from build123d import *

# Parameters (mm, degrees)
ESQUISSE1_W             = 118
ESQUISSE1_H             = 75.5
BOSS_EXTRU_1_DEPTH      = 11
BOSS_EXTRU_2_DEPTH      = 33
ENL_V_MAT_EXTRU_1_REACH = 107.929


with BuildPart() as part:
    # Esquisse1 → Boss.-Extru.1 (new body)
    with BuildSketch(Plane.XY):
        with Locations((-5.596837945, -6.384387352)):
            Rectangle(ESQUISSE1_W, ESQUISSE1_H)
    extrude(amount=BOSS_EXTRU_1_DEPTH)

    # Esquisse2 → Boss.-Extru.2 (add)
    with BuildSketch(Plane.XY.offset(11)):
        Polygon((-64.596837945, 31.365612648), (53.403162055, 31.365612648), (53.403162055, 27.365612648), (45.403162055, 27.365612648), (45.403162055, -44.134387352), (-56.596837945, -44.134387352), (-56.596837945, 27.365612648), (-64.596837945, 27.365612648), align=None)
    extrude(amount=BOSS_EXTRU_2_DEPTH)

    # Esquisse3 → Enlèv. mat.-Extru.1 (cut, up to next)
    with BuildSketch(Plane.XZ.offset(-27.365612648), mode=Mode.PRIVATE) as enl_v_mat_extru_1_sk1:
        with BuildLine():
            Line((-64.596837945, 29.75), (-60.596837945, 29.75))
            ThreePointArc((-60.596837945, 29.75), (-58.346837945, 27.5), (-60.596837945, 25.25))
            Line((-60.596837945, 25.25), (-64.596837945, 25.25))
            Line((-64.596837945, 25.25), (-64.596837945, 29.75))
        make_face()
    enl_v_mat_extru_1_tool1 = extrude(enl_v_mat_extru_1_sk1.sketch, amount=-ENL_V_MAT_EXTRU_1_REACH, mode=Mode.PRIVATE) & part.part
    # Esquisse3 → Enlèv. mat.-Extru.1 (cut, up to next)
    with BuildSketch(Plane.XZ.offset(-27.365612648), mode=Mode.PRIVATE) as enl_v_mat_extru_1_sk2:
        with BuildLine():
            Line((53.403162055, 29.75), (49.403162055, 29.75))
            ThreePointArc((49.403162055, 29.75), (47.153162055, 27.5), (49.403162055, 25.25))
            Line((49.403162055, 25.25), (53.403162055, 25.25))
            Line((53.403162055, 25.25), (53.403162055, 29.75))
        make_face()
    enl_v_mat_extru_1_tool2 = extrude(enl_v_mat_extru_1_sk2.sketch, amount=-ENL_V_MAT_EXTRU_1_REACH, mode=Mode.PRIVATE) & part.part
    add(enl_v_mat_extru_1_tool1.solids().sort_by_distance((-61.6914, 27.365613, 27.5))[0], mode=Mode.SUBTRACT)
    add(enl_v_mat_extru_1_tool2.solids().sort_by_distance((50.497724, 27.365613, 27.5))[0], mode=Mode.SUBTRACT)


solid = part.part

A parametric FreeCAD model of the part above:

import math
import FreeCAD as App
import Part
import Sketcher
from FreeCAD import Vector


def add_polygon(sketch, points):
    """Adds a closed chain of lines whose ends are joined by coincident constraints."""
    first, n = sketch.GeometryCount, len(points)
    for a, b in zip(points, points[1:] + points[:1]):
        sketch.addGeometry(Part.LineSegment(App.Vector(*a, 0), App.Vector(*b, 0)), False)
    for i in range(n):
        sketch.addConstraint(Sketcher.Constraint("Coincident", first + i, 2, first + (i + 1) % n, 1))

doc = App.newDocument("Part")
body = doc.addObject("PartDesign::Body", "Body")

# Sketch on XY plane
sketch1 = body.newObject("Sketcher::SketchObject", "Sketch")
sketch1.AttachmentSupport = (doc.getObject("XY_Plane"), [""])
sketch1.MapMode = "FlatFace"
add_polygon(sketch1, [(-65, 31), (-65, -44), (53, -44), (53, 31)])  # lines 0-3
sketch1.addConstraint([
    Sketcher.Constraint("Vertical", 0),
    Sketcher.Constraint("Horizontal", 1),
    Sketcher.Constraint("Vertical", 2),
    Sketcher.Constraint("Horizontal", 3),
    Sketcher.Constraint("DistanceX", 1, 1, 1, 2, 118.0),
    Sketcher.Constraint("DistanceY", 0, 2, 0, 1, 75.5),
    Sketcher.Constraint("DistanceX", 0, 2, -1, 1, 64.596838),
    Sketcher.Constraint("DistanceY", 0, 2, -1, 1, 44.134387),
])
pad1 = body.newObject("PartDesign::Pad", "Pad")
pad1.Profile = sketch1
pad1.Length = 11

# Sketch on XY plane
sketch2 = body.newObject("Sketcher::SketchObject", "Sketch001")
sketch2.AttachmentSupport = (doc.getObject("XY_Plane"), [""])
sketch2.MapMode = "FlatFace"
sketch2.AttachmentOffset = App.Placement(Vector(0, 0, 11), App.Rotation())
add_polygon(sketch2, [(53.4, 31.4), (-64.6, 31.4), (-64.6, 27.4), (-56.6, 27.4), (-56.6, -44.1), (45.4, -44.1), (45.4, 27.4), (53.4, 27.4)])  # lines 0-7
sketch2.addConstraint([
    Sketcher.Constraint("Horizontal", 0),
    Sketcher.Constraint("Vertical", 1),
    Sketcher.Constraint("Horizontal", 2),
    Sketcher.Constraint("Vertical", 3),
    Sketcher.Constraint("Horizontal", 4),
    Sketcher.Constraint("Vertical", 5),
    Sketcher.Constraint("Horizontal", 6),
    Sketcher.Constraint("Vertical", 7),
    Sketcher.Constraint("Horizontal", 2, 2, 5, 2),
    Sketcher.Constraint("Equal", 2, 6),
    Sketcher.Constraint("DistanceX", 0, 2, 0, 1, 118.0),
    Sketcher.Constraint("DistanceX", 2, 1, 2, 2, 8.0),
    Sketcher.Constraint("DistanceY", 1, 2, 1, 1, 4.0),
    Sketcher.Constraint("DistanceY", 3, 2, 3, 1, 71.5),
    Sketcher.Constraint("DistanceX", 0, 2, -1, 1, 64.596838),
    Sketcher.Constraint("DistanceY", -1, 1, 0, 2, 31.365613),
])
pad2 = body.newObject("PartDesign::Pad", "Pad001")
pad2.Profile = sketch2
pad2.Length = 33

# Sketch on XZ plane
sketch3 = body.newObject("Sketcher::SketchObject", "Sketch002")
sketch3.AttachmentSupport = (doc.getObject("XZ_Plane"), [""])
sketch3.MapMode = "FlatFace"
sketch3.AttachmentOffset = App.Placement(Vector(0, 0, -27.365613), App.Rotation())
sketch3.addGeometry([
    Part.LineSegment(Vector(-60.6, 29.8, 0), Vector(-64.6, 29.8, 0)),
    Part.LineSegment(Vector(-64.6, 29.8, 0), Vector(-64.6, 25.2, 0)),
    Part.LineSegment(Vector(-64.6, 25.2, 0), Vector(-60.6, 25.2, 0)),
    Part.ArcOfCircle(Part.Circle(Vector(-60.6, 27.5, 0), Vector(0, 0, 1), 2.2), math.radians(-90), math.radians(90)),
], False)
sketch3.addConstraint([
    Sketcher.Constraint("Coincident", 0, 2, 1, 1),
    Sketcher.Constraint("Coincident", 1, 2, 2, 1),
    Sketcher.Constraint("Tangent", 2, 2, 3, 1),
    Sketcher.Constraint("Tangent", 3, 2, 0, 1),
    Sketcher.Constraint("Horizontal", 0),
    Sketcher.Constraint("Vertical", 1),
    Sketcher.Constraint("Horizontal", 2),
    Sketcher.Constraint("DistanceX", 0, 2, 0, 1, 4.0),
    Sketcher.Constraint("Radius", 3, 2.25),
    Sketcher.Constraint("DistanceY", -1, 1, 3, 3, 27.5),
    Sketcher.Constraint("DistanceX", 3, 3, -1, 1, 60.596838),
])
pocket1 = body.newObject("PartDesign::Pocket", "Pocket")
pocket1.Profile = sketch3
pocket1.Type = "UpToFirst"

# Sketch on XZ plane
sketch4 = body.newObject("Sketcher::SketchObject", "Sketch003")
sketch4.AttachmentSupport = (doc.getObject("XZ_Plane"), [""])
sketch4.MapMode = "FlatFace"
sketch4.AttachmentOffset = App.Placement(Vector(0, 0, -27.365613), App.Rotation())
sketch4.addGeometry([
    Part.LineSegment(Vector(53.4, 29.8, 0), Vector(49.4, 29.8, 0)),
    Part.ArcOfCircle(Part.Circle(Vector(49.4, 27.5, 0), Vector(0, 0, 1), 2.2), math.radians(90), math.radians(270)),
    Part.LineSegment(Vector(49.4, 25.2, 0), Vector(53.4, 25.2, 0)),
    Part.LineSegment(Vector(53.4, 25.2, 0), Vector(53.4, 29.8, 0)),
], False)
sketch4.addConstraint([
    Sketcher.Constraint("Tangent", 0, 2, 1, 1),
    Sketcher.Constraint("Tangent", 1, 2, 2, 1),
    Sketcher.Constraint("Coincident", 2, 2, 3, 1),
    Sketcher.Constraint("Coincident", 3, 2, 0, 1),
    Sketcher.Constraint("Horizontal", 0),
    Sketcher.Constraint("Horizontal", 2),
    Sketcher.Constraint("Vertical", 3),
    Sketcher.Constraint("DistanceX", 0, 2, 0, 1, 4.0),
    Sketcher.Constraint("Radius", 1, 2.25),
    Sketcher.Constraint("DistanceY", -1, 1, 1, 3, 27.5),
    Sketcher.Constraint("DistanceX", -1, 1, 1, 3, 49.403162),
])
pocket2 = body.newObject("PartDesign::Pocket", "Pocket001")
pocket2.Profile = sketch4
pocket2.Type = "UpToFirst"

doc.recompute()
